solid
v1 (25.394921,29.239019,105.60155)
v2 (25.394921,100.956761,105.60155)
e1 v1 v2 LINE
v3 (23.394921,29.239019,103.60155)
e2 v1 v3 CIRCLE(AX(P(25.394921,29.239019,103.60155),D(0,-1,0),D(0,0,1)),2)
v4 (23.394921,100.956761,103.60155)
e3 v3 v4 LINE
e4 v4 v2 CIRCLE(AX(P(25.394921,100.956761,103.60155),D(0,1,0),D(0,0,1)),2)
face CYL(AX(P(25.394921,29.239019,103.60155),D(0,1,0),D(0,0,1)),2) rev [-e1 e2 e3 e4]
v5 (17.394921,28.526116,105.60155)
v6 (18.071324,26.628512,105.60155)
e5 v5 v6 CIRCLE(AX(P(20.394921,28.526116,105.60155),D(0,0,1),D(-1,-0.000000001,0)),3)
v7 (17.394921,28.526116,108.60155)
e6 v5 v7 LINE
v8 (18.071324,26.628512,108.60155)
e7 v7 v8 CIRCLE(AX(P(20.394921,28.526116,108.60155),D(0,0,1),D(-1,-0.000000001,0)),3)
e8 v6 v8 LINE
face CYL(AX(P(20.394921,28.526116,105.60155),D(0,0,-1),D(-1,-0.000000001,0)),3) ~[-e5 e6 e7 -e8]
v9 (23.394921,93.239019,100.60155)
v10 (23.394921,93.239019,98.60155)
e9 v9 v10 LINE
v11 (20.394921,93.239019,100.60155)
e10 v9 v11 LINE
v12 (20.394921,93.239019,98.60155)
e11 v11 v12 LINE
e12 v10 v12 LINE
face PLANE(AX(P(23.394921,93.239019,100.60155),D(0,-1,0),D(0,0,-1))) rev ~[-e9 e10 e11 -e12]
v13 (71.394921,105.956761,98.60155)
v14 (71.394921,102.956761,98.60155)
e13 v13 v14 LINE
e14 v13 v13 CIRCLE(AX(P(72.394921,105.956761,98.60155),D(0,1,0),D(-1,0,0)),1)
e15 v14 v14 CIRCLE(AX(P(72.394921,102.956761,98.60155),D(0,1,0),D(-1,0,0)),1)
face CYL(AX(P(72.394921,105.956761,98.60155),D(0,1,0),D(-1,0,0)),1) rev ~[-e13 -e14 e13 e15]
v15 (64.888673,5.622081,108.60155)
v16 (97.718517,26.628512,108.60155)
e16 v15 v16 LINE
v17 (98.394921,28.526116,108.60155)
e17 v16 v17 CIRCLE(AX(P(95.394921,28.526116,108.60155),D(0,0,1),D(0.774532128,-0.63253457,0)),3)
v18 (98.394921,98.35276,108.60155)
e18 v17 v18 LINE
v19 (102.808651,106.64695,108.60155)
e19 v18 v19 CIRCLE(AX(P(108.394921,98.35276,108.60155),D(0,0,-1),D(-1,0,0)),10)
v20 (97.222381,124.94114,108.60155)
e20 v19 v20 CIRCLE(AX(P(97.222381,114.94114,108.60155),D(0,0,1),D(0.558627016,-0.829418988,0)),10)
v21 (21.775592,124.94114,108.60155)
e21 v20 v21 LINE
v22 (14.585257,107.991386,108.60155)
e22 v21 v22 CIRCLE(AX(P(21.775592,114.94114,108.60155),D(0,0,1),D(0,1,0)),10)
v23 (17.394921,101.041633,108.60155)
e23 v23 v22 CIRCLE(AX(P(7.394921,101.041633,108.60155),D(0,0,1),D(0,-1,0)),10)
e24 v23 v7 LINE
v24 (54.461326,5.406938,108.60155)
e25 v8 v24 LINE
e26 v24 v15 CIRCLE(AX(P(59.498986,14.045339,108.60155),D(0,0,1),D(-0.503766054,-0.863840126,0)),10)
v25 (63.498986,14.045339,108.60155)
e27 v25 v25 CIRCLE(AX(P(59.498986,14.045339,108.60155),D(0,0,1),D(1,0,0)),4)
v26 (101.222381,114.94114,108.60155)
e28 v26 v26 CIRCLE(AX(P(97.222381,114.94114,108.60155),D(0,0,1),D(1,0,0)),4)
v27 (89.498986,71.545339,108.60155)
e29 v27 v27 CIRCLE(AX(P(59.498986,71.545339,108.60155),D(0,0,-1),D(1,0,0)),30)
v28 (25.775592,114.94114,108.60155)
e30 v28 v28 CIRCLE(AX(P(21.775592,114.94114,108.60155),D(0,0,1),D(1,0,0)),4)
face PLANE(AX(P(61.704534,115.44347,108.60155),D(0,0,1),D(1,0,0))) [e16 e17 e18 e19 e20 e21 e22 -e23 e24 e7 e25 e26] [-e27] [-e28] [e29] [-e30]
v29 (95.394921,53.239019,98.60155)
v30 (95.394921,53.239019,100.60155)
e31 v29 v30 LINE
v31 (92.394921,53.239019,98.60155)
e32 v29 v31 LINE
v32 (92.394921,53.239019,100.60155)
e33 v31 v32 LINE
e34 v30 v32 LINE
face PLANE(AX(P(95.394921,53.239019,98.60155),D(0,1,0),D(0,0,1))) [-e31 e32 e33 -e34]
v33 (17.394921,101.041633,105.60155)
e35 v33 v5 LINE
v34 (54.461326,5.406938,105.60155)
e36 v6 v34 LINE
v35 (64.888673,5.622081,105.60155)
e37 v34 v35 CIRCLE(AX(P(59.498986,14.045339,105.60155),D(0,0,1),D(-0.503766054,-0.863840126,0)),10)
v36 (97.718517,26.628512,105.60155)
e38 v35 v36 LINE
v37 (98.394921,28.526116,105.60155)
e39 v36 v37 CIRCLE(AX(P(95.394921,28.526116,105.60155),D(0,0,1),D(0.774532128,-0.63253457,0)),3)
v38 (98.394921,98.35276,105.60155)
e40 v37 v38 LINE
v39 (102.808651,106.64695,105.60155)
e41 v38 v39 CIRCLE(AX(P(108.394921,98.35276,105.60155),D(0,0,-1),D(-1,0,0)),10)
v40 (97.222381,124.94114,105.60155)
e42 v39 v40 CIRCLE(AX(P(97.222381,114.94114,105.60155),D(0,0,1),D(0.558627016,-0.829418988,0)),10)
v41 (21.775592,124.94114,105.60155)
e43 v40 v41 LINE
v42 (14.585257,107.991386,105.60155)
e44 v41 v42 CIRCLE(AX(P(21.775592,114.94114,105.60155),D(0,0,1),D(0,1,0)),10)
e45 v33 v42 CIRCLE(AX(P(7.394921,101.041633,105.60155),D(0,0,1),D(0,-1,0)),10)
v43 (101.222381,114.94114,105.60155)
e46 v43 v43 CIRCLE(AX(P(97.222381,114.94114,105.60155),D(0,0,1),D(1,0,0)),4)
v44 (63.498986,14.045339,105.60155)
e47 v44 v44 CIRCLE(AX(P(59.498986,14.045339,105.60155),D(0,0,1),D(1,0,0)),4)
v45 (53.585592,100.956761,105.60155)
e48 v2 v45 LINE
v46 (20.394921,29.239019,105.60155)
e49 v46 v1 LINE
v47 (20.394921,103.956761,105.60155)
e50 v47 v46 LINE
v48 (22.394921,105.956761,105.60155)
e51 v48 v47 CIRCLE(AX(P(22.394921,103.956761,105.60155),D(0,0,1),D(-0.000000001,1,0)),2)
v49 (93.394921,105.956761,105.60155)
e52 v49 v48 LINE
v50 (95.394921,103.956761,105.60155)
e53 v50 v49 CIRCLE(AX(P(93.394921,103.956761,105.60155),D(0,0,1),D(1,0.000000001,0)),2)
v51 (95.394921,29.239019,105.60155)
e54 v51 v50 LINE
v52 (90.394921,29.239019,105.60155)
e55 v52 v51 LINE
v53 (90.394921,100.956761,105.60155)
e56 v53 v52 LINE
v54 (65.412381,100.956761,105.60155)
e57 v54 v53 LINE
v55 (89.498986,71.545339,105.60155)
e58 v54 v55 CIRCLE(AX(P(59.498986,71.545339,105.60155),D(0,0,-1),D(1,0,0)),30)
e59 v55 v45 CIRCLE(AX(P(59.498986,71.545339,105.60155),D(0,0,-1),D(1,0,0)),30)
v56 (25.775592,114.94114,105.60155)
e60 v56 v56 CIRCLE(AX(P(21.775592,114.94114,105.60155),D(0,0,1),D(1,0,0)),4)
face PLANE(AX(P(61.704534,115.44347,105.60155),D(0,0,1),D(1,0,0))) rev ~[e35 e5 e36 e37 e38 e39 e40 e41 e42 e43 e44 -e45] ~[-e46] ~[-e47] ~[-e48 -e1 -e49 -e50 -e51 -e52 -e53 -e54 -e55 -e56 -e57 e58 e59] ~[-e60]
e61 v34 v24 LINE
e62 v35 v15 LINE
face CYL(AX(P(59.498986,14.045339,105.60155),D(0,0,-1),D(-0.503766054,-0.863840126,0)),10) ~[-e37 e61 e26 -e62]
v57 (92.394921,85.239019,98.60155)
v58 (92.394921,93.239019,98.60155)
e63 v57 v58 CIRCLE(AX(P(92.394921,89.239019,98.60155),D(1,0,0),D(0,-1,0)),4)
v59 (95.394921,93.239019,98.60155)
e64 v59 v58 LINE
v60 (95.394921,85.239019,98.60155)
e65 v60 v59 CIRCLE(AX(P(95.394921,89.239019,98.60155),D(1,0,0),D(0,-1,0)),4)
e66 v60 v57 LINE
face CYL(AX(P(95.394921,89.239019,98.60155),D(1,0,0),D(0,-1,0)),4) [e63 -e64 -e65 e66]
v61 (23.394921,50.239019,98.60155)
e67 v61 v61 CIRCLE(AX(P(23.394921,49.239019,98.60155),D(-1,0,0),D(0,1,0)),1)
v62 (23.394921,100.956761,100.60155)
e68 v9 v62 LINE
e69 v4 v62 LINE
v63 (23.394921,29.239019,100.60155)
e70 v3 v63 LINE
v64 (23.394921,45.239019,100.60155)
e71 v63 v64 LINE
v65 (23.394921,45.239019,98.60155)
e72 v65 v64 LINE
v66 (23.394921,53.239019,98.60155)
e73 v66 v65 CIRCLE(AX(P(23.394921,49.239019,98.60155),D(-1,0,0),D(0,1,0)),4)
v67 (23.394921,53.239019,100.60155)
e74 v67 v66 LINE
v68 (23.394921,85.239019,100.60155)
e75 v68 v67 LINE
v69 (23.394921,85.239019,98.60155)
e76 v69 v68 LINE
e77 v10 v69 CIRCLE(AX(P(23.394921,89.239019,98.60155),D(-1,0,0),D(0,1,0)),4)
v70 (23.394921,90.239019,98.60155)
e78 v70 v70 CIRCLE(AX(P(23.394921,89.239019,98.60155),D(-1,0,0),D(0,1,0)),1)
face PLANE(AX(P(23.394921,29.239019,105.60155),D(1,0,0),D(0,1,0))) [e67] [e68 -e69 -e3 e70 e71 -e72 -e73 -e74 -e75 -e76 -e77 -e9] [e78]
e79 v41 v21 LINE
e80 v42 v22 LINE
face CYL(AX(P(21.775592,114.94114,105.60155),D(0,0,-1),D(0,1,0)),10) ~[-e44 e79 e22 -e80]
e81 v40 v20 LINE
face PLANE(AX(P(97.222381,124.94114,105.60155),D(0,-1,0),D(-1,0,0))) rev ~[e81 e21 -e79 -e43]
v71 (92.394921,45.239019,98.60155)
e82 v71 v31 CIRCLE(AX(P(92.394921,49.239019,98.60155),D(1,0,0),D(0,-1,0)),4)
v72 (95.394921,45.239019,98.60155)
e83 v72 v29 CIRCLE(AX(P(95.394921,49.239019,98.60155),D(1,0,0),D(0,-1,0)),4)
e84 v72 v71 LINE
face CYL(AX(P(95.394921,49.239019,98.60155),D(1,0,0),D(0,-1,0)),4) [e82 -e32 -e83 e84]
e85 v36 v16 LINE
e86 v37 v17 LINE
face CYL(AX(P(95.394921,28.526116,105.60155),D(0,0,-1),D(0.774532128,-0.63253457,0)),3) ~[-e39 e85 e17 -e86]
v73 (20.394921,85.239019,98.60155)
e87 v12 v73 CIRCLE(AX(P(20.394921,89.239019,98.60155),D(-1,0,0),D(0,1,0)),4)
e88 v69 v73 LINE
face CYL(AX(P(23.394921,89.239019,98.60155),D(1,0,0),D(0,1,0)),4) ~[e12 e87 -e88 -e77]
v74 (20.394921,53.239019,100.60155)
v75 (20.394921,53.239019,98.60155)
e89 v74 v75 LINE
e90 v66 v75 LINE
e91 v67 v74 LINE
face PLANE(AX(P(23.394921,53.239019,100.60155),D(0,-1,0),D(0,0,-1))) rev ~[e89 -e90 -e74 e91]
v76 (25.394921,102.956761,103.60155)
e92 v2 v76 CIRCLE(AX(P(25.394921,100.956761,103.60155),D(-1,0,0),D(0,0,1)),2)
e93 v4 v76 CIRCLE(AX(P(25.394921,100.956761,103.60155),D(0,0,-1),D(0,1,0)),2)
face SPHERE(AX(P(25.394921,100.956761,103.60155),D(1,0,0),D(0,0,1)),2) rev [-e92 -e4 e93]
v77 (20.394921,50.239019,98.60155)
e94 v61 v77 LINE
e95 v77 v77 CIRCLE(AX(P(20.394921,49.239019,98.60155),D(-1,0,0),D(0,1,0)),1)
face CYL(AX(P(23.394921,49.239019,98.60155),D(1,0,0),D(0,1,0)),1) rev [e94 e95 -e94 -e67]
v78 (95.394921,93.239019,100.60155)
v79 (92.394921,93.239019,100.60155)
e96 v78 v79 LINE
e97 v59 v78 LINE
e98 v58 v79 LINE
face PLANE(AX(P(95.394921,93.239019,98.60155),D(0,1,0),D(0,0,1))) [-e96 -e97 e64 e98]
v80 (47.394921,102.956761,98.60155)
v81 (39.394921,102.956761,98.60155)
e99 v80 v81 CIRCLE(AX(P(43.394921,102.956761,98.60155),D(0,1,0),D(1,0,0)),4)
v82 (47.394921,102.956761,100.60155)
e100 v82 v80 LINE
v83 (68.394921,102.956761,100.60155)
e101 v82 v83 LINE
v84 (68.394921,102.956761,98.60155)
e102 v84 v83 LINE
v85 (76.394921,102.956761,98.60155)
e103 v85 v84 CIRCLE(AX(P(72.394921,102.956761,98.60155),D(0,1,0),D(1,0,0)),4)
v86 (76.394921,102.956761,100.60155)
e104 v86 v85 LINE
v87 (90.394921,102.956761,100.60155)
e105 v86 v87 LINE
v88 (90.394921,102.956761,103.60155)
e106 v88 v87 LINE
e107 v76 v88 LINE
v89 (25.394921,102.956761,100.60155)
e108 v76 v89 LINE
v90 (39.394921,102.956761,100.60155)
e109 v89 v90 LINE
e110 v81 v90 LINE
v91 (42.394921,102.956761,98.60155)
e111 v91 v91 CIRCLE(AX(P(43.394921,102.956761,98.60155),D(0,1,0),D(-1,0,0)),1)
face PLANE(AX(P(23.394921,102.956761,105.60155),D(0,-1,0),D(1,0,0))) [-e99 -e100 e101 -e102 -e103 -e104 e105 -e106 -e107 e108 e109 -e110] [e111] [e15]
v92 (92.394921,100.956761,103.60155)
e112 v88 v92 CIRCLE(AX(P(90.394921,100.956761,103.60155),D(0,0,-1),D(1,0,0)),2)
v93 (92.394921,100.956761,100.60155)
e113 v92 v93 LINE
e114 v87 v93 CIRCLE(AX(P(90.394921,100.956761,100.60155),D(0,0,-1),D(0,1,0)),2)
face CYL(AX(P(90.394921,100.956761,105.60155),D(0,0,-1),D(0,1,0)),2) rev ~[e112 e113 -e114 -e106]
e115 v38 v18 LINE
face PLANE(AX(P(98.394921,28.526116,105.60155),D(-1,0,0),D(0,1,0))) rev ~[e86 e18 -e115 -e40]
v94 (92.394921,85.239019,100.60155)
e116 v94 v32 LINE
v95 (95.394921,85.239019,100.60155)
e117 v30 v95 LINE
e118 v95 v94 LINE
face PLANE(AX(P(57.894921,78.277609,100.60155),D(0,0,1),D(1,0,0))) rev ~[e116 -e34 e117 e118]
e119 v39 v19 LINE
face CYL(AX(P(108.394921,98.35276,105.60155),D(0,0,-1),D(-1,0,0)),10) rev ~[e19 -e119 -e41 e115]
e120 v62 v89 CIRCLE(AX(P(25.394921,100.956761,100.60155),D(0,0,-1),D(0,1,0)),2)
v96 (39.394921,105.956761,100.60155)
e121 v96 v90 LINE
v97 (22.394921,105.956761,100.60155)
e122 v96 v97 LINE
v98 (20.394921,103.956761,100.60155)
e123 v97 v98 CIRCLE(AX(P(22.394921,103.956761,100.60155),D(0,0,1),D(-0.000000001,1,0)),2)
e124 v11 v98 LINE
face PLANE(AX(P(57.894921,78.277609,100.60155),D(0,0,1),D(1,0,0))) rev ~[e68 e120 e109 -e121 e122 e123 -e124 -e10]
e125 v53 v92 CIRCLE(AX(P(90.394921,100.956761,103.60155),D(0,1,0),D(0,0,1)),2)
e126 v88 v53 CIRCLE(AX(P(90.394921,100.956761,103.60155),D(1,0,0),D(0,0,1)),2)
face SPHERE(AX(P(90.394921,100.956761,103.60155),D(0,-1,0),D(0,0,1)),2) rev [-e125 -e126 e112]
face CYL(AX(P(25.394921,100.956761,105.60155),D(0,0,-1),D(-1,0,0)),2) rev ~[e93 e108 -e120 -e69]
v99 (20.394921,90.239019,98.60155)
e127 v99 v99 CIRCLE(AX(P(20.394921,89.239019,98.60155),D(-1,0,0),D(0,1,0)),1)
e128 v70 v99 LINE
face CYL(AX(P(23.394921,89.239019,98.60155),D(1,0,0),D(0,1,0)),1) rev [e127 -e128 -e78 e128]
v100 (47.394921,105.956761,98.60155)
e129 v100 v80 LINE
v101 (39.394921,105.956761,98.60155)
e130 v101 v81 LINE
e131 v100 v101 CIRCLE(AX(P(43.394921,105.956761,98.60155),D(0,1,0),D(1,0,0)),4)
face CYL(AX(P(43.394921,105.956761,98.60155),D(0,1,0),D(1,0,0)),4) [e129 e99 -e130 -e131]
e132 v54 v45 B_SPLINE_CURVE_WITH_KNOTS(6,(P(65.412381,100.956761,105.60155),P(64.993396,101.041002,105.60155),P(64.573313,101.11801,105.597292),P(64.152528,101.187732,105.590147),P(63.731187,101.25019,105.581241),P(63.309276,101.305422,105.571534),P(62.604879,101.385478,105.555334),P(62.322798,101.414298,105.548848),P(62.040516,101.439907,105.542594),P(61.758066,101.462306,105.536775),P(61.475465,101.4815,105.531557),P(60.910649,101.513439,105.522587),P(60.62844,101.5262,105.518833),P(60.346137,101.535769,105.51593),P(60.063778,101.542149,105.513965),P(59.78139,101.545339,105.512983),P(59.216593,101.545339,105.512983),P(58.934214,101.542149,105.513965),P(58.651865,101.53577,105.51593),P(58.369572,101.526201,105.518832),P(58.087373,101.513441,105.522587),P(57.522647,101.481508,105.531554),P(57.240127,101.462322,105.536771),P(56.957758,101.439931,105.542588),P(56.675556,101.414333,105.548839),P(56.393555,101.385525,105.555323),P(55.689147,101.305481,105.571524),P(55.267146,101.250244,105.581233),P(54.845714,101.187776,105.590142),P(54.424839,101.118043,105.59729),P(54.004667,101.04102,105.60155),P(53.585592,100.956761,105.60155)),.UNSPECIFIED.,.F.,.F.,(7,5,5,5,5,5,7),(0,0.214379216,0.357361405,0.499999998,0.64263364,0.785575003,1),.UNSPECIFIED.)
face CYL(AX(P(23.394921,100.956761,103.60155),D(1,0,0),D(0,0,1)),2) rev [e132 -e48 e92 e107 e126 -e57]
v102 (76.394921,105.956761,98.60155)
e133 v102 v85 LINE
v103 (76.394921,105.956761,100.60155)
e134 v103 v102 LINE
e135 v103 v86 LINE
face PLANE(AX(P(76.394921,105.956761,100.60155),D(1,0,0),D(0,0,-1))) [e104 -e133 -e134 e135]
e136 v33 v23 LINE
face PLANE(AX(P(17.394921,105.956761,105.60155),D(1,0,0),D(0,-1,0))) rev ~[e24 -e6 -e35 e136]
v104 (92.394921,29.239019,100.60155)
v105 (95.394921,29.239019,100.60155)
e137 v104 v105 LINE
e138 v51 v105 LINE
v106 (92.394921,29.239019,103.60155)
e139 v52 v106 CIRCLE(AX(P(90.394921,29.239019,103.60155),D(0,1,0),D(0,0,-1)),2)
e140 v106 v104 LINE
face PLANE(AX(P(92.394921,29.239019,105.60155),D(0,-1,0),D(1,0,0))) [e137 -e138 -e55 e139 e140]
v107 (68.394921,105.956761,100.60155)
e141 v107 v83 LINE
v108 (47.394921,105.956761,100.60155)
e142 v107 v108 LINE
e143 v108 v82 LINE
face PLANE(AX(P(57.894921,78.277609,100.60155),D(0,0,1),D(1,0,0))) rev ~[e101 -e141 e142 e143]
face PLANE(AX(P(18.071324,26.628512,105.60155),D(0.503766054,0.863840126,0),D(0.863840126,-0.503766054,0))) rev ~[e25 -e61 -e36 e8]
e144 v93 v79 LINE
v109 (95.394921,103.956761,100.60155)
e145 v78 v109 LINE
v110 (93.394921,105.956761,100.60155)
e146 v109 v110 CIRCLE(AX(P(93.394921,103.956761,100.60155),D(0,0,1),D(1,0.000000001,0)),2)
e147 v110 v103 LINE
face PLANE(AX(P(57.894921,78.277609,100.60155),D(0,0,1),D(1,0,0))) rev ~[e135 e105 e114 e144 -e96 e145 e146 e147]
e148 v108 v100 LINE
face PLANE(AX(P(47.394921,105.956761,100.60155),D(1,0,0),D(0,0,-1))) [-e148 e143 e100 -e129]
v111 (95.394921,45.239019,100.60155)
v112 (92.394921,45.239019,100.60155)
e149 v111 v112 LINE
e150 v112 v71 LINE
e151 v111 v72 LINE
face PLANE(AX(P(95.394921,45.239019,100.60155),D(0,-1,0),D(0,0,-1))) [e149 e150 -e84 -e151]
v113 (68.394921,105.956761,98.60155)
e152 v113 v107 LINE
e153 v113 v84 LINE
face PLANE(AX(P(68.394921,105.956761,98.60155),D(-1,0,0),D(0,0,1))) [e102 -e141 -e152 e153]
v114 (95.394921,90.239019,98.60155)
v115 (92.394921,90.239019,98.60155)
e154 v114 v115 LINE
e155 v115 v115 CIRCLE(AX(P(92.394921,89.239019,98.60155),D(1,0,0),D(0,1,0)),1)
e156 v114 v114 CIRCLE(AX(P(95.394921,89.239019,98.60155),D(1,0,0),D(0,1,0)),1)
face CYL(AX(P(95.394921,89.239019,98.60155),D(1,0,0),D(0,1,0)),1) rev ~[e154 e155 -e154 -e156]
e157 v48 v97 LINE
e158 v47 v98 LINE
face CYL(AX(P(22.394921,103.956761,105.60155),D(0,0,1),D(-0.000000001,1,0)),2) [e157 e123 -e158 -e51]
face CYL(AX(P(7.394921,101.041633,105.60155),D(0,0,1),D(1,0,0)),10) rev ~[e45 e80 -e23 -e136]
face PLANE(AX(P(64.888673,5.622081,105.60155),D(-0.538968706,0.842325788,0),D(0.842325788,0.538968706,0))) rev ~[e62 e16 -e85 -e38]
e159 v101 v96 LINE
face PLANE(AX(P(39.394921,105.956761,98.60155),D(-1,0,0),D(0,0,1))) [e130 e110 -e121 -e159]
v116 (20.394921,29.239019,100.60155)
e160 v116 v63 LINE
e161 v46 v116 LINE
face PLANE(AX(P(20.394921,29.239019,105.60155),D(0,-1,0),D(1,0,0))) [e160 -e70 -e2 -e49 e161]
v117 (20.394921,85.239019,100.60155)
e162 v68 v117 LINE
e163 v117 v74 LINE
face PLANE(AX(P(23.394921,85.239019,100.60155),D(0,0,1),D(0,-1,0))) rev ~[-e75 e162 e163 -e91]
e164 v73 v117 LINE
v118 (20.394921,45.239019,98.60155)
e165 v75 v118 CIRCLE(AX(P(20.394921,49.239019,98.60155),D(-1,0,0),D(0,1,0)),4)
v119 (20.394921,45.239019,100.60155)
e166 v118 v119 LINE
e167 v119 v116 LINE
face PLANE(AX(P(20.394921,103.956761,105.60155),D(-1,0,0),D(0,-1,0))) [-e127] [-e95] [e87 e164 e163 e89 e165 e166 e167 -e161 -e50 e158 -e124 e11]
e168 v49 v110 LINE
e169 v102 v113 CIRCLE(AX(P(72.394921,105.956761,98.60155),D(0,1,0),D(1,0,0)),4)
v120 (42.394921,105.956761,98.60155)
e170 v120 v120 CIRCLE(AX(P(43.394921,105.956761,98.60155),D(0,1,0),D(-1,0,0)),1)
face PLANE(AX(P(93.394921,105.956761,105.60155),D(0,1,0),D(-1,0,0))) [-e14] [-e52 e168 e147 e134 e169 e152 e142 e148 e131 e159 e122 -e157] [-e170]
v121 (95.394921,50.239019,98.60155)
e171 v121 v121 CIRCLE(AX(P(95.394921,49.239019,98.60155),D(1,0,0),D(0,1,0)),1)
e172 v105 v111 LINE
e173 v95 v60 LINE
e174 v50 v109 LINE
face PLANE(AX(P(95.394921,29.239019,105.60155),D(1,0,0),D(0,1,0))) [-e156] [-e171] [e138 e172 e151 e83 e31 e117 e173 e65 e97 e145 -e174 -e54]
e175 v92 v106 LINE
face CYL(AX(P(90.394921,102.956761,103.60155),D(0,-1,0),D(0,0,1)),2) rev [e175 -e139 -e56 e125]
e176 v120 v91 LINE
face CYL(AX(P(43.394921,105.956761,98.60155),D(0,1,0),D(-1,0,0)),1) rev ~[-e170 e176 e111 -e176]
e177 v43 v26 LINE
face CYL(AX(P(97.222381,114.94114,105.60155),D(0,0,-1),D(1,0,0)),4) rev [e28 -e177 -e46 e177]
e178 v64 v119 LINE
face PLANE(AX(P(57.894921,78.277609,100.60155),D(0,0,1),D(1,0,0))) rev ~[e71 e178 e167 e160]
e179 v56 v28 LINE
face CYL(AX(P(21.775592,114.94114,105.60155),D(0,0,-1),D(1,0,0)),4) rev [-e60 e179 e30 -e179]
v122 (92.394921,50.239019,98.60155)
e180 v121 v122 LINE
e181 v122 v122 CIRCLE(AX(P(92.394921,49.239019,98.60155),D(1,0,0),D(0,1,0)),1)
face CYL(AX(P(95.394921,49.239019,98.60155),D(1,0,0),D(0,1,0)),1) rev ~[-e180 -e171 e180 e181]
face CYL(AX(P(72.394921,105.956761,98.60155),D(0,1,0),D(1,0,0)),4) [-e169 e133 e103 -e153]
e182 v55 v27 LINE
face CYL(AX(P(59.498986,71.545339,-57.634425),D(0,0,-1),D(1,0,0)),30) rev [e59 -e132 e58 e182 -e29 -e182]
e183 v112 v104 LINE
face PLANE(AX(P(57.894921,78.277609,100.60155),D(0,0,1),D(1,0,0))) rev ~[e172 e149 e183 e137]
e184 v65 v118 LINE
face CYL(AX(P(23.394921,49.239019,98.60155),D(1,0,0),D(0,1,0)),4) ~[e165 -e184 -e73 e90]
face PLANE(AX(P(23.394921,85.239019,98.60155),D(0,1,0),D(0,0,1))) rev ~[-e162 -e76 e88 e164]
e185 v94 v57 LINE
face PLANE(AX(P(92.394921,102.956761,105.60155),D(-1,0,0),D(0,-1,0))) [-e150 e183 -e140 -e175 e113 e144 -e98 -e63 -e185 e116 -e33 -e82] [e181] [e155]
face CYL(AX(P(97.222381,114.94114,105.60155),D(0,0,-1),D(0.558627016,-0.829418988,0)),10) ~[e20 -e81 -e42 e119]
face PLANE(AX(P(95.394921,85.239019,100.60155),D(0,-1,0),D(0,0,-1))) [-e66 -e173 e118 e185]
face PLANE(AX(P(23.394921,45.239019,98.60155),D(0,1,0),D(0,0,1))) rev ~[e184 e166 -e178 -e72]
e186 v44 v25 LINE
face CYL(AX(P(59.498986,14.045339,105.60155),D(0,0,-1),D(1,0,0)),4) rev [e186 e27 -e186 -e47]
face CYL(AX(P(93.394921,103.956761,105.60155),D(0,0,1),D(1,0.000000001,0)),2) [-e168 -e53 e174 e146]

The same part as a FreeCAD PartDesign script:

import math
import FreeCAD as App
import Part
import Sketcher
Q = App.Units.Quantity


def edges_at(feature, points):
    """Names of the edges that pass closest to the given points."""
    edges = feature.Shape.Edges
    near = lambda p: min(range(len(edges)), key=lambda i: edges[i].distToShape(Part.Vertex(*p))[0])
    return sorted({f"Edge{near(p) + 1}" for p in points})

doc = App.newDocument("Part")
params = doc.addObject("Spreadsheet::Sheet", "Params")
for row, (alias, value) in enumerate([
    ("sketch1_radius", "3 mm"),
    ("sketch1_radius2", "2 mm"),
    ("sketch1_width", "75 mm"),
    ("pad1_length", "3 mm"),
    ("sketch2_diameter", "8 mm"),
    ("sketch2_radius", "10 mm"),
    ("sketch2_radius2", "3 mm"),
    ("pad2_length", "3 mm"),
    ("sketch3_radius", "2 mm"),
    ("sketch3_width", "71 mm"),
    ("sketch3_width2", "3 mm"),
    ("pad3_length", "5 mm"),
    ("fillet_radius", "2 mm"),
    ("fillet2_radius", "10 mm"),
    ("sketch4_diameter", "2 mm"),
    ("sketch4_radius", "4 mm"),
    ("sketch4_height", "2 mm"),
    ("pad4_length", "3 mm"),
    ("sketch5_diameter", "2 mm"),
    ("sketch5_radius", "4 mm"),
    ("sketch5_width", "32 mm"),
    ("sketch5_width2", "16 mm"),
    ("sketch5_height", "3 mm"),
    ("pad5_length", "3 mm"),
    ("sketch6_diameter", "2 mm"),
    ("sketch6_radius", "4 mm"),
    ("sketch6_height", "2 mm"),
    ("pad6_length", "3 mm"),
    ("sketch7_diameter", "60 mm"),
], start=1):
    params.set(f"A{row}", alias)
    params.set(f"B{row}", "=" + value)
    params.setAlias(f"B{row}", alias)

body = doc.addObject("PartDesign::Body", "Body")

# Sketch on XY plane
sketch1 = body.newObject("Sketcher::SketchObject", "Sketch")
sketch1.AttachmentSupport = (doc.getObject("XY_Plane"), [""])
sketch1.MapMode = "FlatFace"
sketch1.AttachmentOffset = App.Placement(App.Vector(0, 0, 105.60155), App.Rotation())
sketch1.addGeometry(Part.LineSegment(App.Vector(93.8, 26.6, 0), App.Vector(97.7, 26.6, 0)), False)
sketch1.addGeometry(Part.ArcOfCircle(Part.Circle(App.Vector(95.4, 28.5, 0), App.Vector(0, 0, 1), 3), math.radians(-39), math.radians(0)), False)
sketch1.addGeometry(Part.LineSegment(App.Vector(98.4, 28.5, 0), App.Vector(98.4, 106, 0)), False)
sketch1.addGeometry(Part.ArcOfCircle(Part.Circle(App.Vector(95.4, 106, 0), App.Vector(0, 0, 1), 3), math.radians(0), math.radians(90)), False)
sketch1.addGeometry(Part.LineSegment(App.Vector(95.4, 109, 0), App.Vector(20.4, 109, 0)), False)
sketch1.addGeometry(Part.ArcOfCircle(Part.Circle(App.Vector(20.4, 106, 0), App.Vector(0, 0, 1), 3), math.radians(90), math.radians(180)), False)
sketch1.addGeometry(Part.LineSegment(App.Vector(17.4, 106, 0), App.Vector(17.4, 28.5, 0)), False)
sketch1.addGeometry(Part.ArcOfCircle(Part.Circle(App.Vector(20.4, 28.5, 0), App.Vector(0, 0, 1), 3), math.radians(-180), math.radians(-141)), False)
sketch1.addGeometry(Part.LineSegment(App.Vector(18.1, 26.6, 0), App.Vector(21.9, 26.6, 0)), False)
sketch1.addGeometry(Part.LineSegment(App.Vector(21.9, 26.6, 0), App.Vector(20.8, 28, 0)), False)
sketch1.addGeometry(Part.ArcOfCircle(Part.Circle(App.Vector(22.4, 29.2, 0), App.Vector(0, 0, 1), 2), math.radians(180), math.radians(219)), False)
sketch1.addGeometry(Part.LineSegment(App.Vector(20.4, 29.2, 0), App.Vector(20.4, 104, 0)), False)
sketch1.addGeometry(Part.ArcOfCircle(Part.Circle(App.Vector(22.4, 104, 0), App.Vector(0, 0, 1), 2), math.radians(90), math.radians(180)), False)
sketch1.addGeometry(Part.LineSegment(App.Vector(22.4, 106, 0), App.Vector(93.4, 106, 0)), False)
sketch1.addGeometry(Part.ArcOfCircle(Part.Circle(App.Vector(93.4, 104, 0), App.Vector(0, 0, 1), 2), math.radians(0), math.radians(90)), False)
sketch1.addGeometry(Part.LineSegment(App.Vector(95.4, 104, 0), App.Vector(95.4, 29.2, 0)), False)
sketch1.addGeometry(Part.ArcOfCircle(Part.Circle(App.Vector(93.4, 29.2, 0), App.Vector(0, 0, 1), 2), math.radians(-39), math.radians(0)), False)
sketch1.addGeometry(Part.LineSegment(App.Vector(94.9, 28, 0), App.Vector(93.8, 26.6, 0)), False)
sketch1.addConstraint(Sketcher.Constraint("Coincident", 0, 2, 1, 1))
sketch1.addConstraint(Sketcher.Constraint("Tangent", 1, 2, 2, 1))
sketch1.addConstraint(Sketcher.Constraint("Tangent", 2, 2, 3, 1))
sketch1.addConstraint(Sketcher.Constraint("Tangent", 3, 2, 4, 1))
sketch1.addConstraint(Sketcher.Constraint("Tangent", 4, 2, 5, 1))
sketch1.addConstraint(Sketcher.Constraint("Tangent", 5, 2, 6, 1))
sketch1.addConstraint(Sketcher.Constraint("Tangent", 6, 2, 7, 1))
sketch1.addConstraint(Sketcher.Constraint("Coincident", 7, 2, 8, 1))
sketch1.addConstraint(Sketcher.Constraint("Coincident", 8, 2, 9, 1))
sketch1.addConstraint(Sketcher.Constraint("Tangent", 9, 2, 10, 2))
sketch1.addConstraint(Sketcher.Constraint("Tangent", 10, 1, 11, 1))
sketch1.addConstraint(Sketcher.Constraint("Tangent", 11, 2, 12, 2))
sketch1.addConstraint(Sketcher.Constraint("Tangent", 12, 1, 13, 1))
sketch1.addConstraint(Sketcher.Constraint("Tangent", 13, 2, 14, 2))
sketch1.addConstraint(Sketcher.Constraint("Tangent", 14, 1, 15, 1))
sketch1.addConstraint(Sketcher.Constraint("Tangent", 15, 2, 16, 2))
sketch1.addConstraint(Sketcher.Constraint("Tangent", 16, 1, 17, 1))
sketch1.addConstraint(Sketcher.Constraint("Coincident", 17, 2, 0, 1))
sketch1.addConstraint(Sketcher.Constraint("Horizontal", 0))
sketch1.addConstraint(Sketcher.Constraint("Vertical", 2))
sketch1.addConstraint(Sketcher.Constraint("Horizontal", 4))
sketch1.addConstraint(Sketcher.Constraint("Vertical", 6))
sketch1.addConstraint(Sketcher.Constraint("Horizontal", 8))
sketch1.addConstraint(Sketcher.Constraint("Vertical", 11))
sketch1.addConstraint(Sketcher.Constraint("Horizontal", 13))
sketch1.addConstraint(Sketcher.Constraint("Vertical", 15))
sketch1.addConstraint(Sketcher.Constraint("Equal", 1, 3))
sketch1.addConstraint(Sketcher.Constraint("Equal", 3, 5))
sketch1.addConstraint(Sketcher.Constraint("Equal", 5, 7))
sketch1.addConstraint(Sketcher.Constraint("Equal", 10, 12))
sketch1.addConstraint(Sketcher.Constraint("Equal", 12, 14))
sketch1.addConstraint(Sketcher.Constraint("Equal", 14, 16))
sketch1.addConstraint(Sketcher.Constraint("Horizontal", 1, 3, 7, 3))
sketch1.addConstraint(Sketcher.Constraint("Horizontal", 10, 3, 16, 3))
sketch1.addConstraint(Sketcher.Constraint("Horizontal", 0, 2, 7, 2))
sketch1.addConstraint(Sketcher.Constraint("Horizontal", 5, 2, 12, 1))
sketch1.addConstraint(Sketcher.Constraint("Horizontal", 9, 2, 16, 1))
sketch1.addConstraint(Sketcher.Constraint("Vertical", 4, 2, 10, 1))
sketch1.addConstraint(Sketcher.Constraint("Vertical", 3, 2, 14, 1))
sketch1.addConstraint(Sketcher.Constraint("Radius", 1, Q("3 mm")))
sketch1.addConstraint(Sketcher.Constraint("Radius", 10, Q("2 mm")))
sketch1.addConstraint(Sketcher.Constraint("DistanceX", 4, 2, 4, 1, Q("75 mm")))
sketch1.addConstraint(Sketcher.Constraint("DistanceX", 0, 1, 0, 2, Q("3.873306 mm")))
sketch1.addConstraint(Sketcher.Constraint("DistanceY", 2, 1, 2, 2, Q("77.430646 mm")))
sketch1.addConstraint(Sketcher.Constraint("DistanceY", 11, 1, 11, 2, Q("74.717743 mm")))
sketch1.addConstraint(Sketcher.Constraint("DistanceX", -1, 1, 1, 3, Q("95.394921 mm")))
sketch1.addConstraint(Sketcher.Constraint("DistanceY", -1, 1, 3, 3, Q("105.956761 mm")))
sketch1.addConstraint(Sketcher.Constraint("DistanceX", -1, 1, 8, 2, Q("21.944631 mm")))
sketch1.setExpression("Constraints[39]", "Params.sketch1_radius")
sketch1.setExpression("Constraints[40]", "Params.sketch1_radius2")
sketch1.setExpression("Constraints[41]", "Params.sketch1_width")
pad1 = body.newObject("PartDesign::Pad", "Pad")
pad1.Profile = sketch1
pad1.setExpression("Length", "Params.pad1_length")

# Sketch on XY plane
sketch2 = body.newObject("Sketcher::SketchObject", "Sketch001")
sketch2.AttachmentSupport = (doc.getObject("XY_Plane"), [""])
sketch2.MapMode = "FlatFace"
sketch2.AttachmentOffset = App.Placement(App.Vector(0, 0, 105.60155), App.Rotation())
sketch2.addGeometry(Part.ArcOfCircle(Part.Circle(App.Vector(97.2, 114.9, 0), App.Vector(0, 0, 1), 10), math.radians(-56), math.radians(90)), False)
sketch2.addGeometry(Part.LineSegment(App.Vector(97.2, 124.9, 0), App.Vector(21.8, 124.9, 0)), False)
sketch2.addGeometry(Part.ArcOfCircle(Part.Circle(App.Vector(21.8, 114.9, 0), App.Vector(0, 0, 1), 10), math.radians(90), math.radians(244)), False)
sketch2.addGeometry(Part.LineSegment(App.Vector(17.4, 106, 0), App.Vector(17.4, 28.5, 0)), False)
sketch2.addGeometry(Part.ArcOfCircle(Part.Circle(App.Vector(20.4, 28.5, 0), App.Vector(0, 0, 1), 3), math.radians(-180), math.radians(-141)), False)
sketch2.addGeometry(Part.LineSegment(App.Vector(18.1, 26.6, 0), App.Vector(54.5, 5.4, 0)), False)
sketch2.addGeometry(Part.ArcOfCircle(Part.Circle(App.Vector(59.5, 14, 0), App.Vector(0, 0, 1), 10), math.radians(-120), math.radians(-57)), False)
sketch2.addGeometry(Part.LineSegment(App.Vector(64.9, 5.6, 0), App.Vector(97.7, 26.6, 0)), False)
sketch2.addGeometry(Part.ArcOfCircle(Part.Circle(App.Vector(95.4, 28.5, 0), App.Vector(0, 0, 1), 3), math.radians(-39), math.radians(0)), False)
sketch2.addGeometry(Part.LineSegment(App.Vector(98.4, 28.5, 0), App.Vector(98.4, 98.4, 0)), False)
sketch2.addGeometry(Part.ArcOfCircle(Part.Circle(App.Vector(108.4, 98.4, 0), App.Vector(0, 0, 1), 10), math.radians(124), math.radians(180)), False)
sketch2.addGeometry(Part.Circle(App.Vector(21.8, 114.9, 0), App.Vector(0, 0, 1), 4), False)
sketch2.addGeometry(Part.Circle(App.Vector(97.2, 114.9, 0), App.Vector(0, 0, 1), 4), False)
sketch2.addGeometry(Part.Circle(App.Vector(59.5, 14, 0), App.Vector(0, 0, 1), 4), False)
sketch2.addConstraint(Sketcher.Constraint("Tangent", 0, 2, 1, 1))
sketch2.addConstraint(Sketcher.Constraint("Tangent", 1, 2, 2, 1))
sketch2.addConstraint(Sketcher.Constraint("Coincident", 2, 2, 3, 1))
sketch2.addConstraint(Sketcher.Constraint("Tangent", 3, 2, 4, 1))
sketch2.addConstraint(Sketcher.Constraint("Coincident", 4, 2, 5, 1))
sketch2.addConstraint(Sketcher.Constraint("Tangent", 5, 2, 6, 1))
sketch2.addConstraint(Sketcher.Constraint("Tangent", 6, 2, 7, 1))
sketch2.addConstraint(Sketcher.Constraint("Coincident", 7, 2, 8, 1))
sketch2.addConstraint(Sketcher.Constraint("Tangent", 8, 2, 9, 1))
sketch2.addConstraint(Sketcher.Constraint("Tangent", 9, 2, 10, 2))
sketch2.addConstraint(Sketcher.Constraint("Tangent", 10, 1, 0, 1))
sketch2.addConstraint(Sketcher.Constraint("Horizontal", 1))
sketch2.addConstraint(Sketcher.Constraint("Vertical", 3))
sketch2.addConstraint(Sketcher.Constraint("Vertical", 9))
sketch2.addConstraint(Sketcher.Constraint("Coincident", 11, 3, 2, 3))
sketch2.addConstraint(Sketcher.Constraint("Coincident", 12, 3, 0, 3))
sketch2.addConstraint(Sketcher.Constraint("Coincident", 13, 3, 6, 3))
sketch2.addConstraint(Sketcher.Constraint("Equal", 0, 2))
sketch2.addConstraint(Sketcher.Constraint("Equal", 2, 6))
sketch2.addConstraint(Sketcher.Constraint("Equal", 4, 8))
sketch2.addConstraint(Sketcher.Constraint("Equal", 6, 10))
sketch2.addConstraint(Sketcher.Constraint("Equal", 11, 12))
sketch2.addConstraint(Sketcher.Constraint("Equal", 12, 13))
sketch2.addConstraint(Sketcher.Constraint("Horizontal", 4, 3, 8, 3))
sketch2.addConstraint(Sketcher.Constraint("Horizontal", 4, 2, 7, 2))
sketch2.addConstraint(Sketcher.Constraint("Diameter", 11, Q("8 mm")))
sketch2.addConstraint(Sketcher.Constraint("Radius", 0, Q("10 mm")))
sketch2.addConstraint(Sketcher.Constraint("Radius", 4, Q("3 mm")))
sketch2.addConstraint(Sketcher.Constraint("DistanceX", 4, 3, 8, 3, Q("75 mm")))
sketch2.addConstraint(Sketcher.Constraint("DistanceX", 4, 2, 5, 2, Q("36.390001 mm")))
sketch2.addConstraint(Sketcher.Constraint("DistanceY", 3, 2, 3, 1, Q("77.425602 mm")))
sketch2.addConstraint(Sketcher.Constraint("DistanceX", 1, 2, 1, 1, Q("75.446788 mm")))
sketch2.addConstraint(Sketcher.Constraint("DistanceY", 6, 3, 2, 3, Q("100.895801 mm")))
sketch2.addConstraint(Sketcher.Constraint("DistanceY", 5, 2, 13, 3, Q("8.638401 mm")))
sketch2.addConstraint(Sketcher.Constraint("DistanceY", 9, 1, 9, 2, Q("69.826644 mm")))
sketch2.addConstraint(Sketcher.Constraint("DistanceX", -1, 1, 0, 3, Q("97.222381 mm")))
sketch2.addConstraint(Sketcher.Constraint("DistanceY", -1, 1, 0, 3, Q("114.94114 mm")))
sketch2.setExpression("Constraints[25]", "Params.sketch2_diameter")
sketch2.setExpression("Constraints[26]", "Params.sketch2_radius")
sketch2.setExpression("Constraints[27]", "Params.sketch2_radius2")
pad2 = body.newObject("PartDesign::Pad", "Pad001")
pad2.Profile = sketch2
pad2.setExpression("Length", "Params.pad2_length")

# Sketch on XY plane
sketch3 = body.newObject("Sketcher::SketchObject", "Sketch002")
sketch3.AttachmentSupport = (doc.getObject("XY_Plane"), [""])
sketch3.MapMode = "FlatFace"
sketch3.AttachmentOffset = App.Placement(App.Vector(0, 0, 105.60155), App.Rotation())
sketch3.addGeometry(Part.LineSegment(App.Vector(20.4, 29.2, 0), App.Vector(20.4, 104, 0)), False)
sketch3.addGeometry(Part.ArcOfCircle(Part.Circle(App.Vector(22.4, 104, 0), App.Vector(0, 0, 1), 2), math.radians(90), math.radians(180)), False)
sketch3.addGeometry(Part.LineSegment(App.Vector(22.4, 106, 0), App.Vector(93.4, 106, 0)), False)
sketch3.addGeometry(Part.ArcOfCircle(Part.Circle(App.Vector(93.4, 104, 0), App.Vector(0, 0, 1), 2), math.radians(0), math.radians(90)), False)
sketch3.addGeometry(Part.LineSegment(App.Vector(95.4, 104, 0), App.Vector(95.4, 29.2, 0)), False)
sketch3.addGeometry(Part.LineSegment(App.Vector(95.4, 29.2, 0), App.Vector(92.4, 29.2, 0)), False)
sketch3.addGeometry(Part.LineSegment(App.Vector(92.4, 29.2, 0), App.Vector(92.4, 103, 0)), False)
sketch3.addGeometry(Part.LineSegment(App.Vector(92.4, 103, 0), App.Vector(23.4, 103, 0)), False)
sketch3.addGeometry(Part.LineSegment(App.Vector(23.4, 103, 0), App.Vector(23.4, 29.2, 0)), False)
sketch3.addGeometry(Part.LineSegment(App.Vector(23.4, 29.2, 0), App.Vector(20.4, 29.2, 0)), False)
sketch3.addConstraint(Sketcher.Constraint("Tangent", 0, 2, 1, 2))
sketch3.addConstraint(Sketcher.Constraint("Tangent", 1, 1, 2, 1))
sketch3.addConstraint(Sketcher.Constraint("Tangent", 2, 2, 3, 2))
sketch3.addConstraint(Sketcher.Constraint("Tangent", 3, 1, 4, 1))
sketch3.addConstraint(Sketcher.Constraint("Coincident", 4, 2, 5, 1))
sketch3.addConstraint(Sketcher.Constraint("Coincident", 5, 2, 6, 1))
sketch3.addConstraint(Sketcher.Constraint("Coincident", 6, 2, 7, 1))
sketch3.addConstraint(Sketcher.Constraint("Coincident", 7, 2, 8, 1))
sketch3.addConstraint(Sketcher.Constraint("Coincident", 8, 2, 9, 1))
sketch3.addConstraint(Sketcher.Constraint("Coincident", 9, 2, 0, 1))
sketch3.addConstraint(Sketcher.Constraint("Vertical", 0))
sketch3.addConstraint(Sketcher.Constraint("Horizontal", 2))
sketch3.addConstraint(Sketcher.Constraint("Vertical", 4))
sketch3.addConstraint(Sketcher.Constraint("Horizontal", 5))
sketch3.addConstraint(Sketcher.Constraint("Vertical", 6))
sketch3.addConstraint(Sketcher.Constraint("Horizontal", 7))
sketch3.addConstraint(Sketcher.Constraint("Vertical", 8))
sketch3.addConstraint(Sketcher.Constraint("Horizontal", 9))
sketch3.addConstraint(Sketcher.Constraint("Equal", 1, 3))
sketch3.addConstraint(Sketcher.Constraint("Horizontal", 5, 2, 8, 2))
sketch3.addConstraint(Sketcher.Constraint("Equal", 5, 9))
sketch3.addConstraint(Sketcher.Constraint("Radius", 1, Q("2 mm")))
sketch3.addConstraint(Sketcher.Constraint("DistanceX", 2, 1, 2, 2, Q("71 mm")))
sketch3.addConstraint(Sketcher.Constraint("DistanceX", 5, 2, 5, 1, Q("3 mm")))
sketch3.addConstraint(Sketcher.Constraint("DistanceY", 6, 2, 3, 3, Q("1 mm")))
sketch3.addConstraint(Sketcher.Constraint("DistanceY", 0, 1, 0, 2, Q("74.717743 mm")))
sketch3.addConstraint(Sketcher.Constraint("DistanceX", -1, 1, 1, 3, Q("22.394921 mm")))
sketch3.addConstraint(Sketcher.Constraint("DistanceY", -1, 1, 1, 3, Q("103.956761 mm")))
sketch3.setExpression("Constraints[21]", "Params.sketch3_radius")
sketch3.setExpression("Constraints[22]", "Params.sketch3_width")
sketch3.setExpression("Constraints[23]", "Params.sketch3_width2")
pad3 = body.newObject("PartDesign::Pad", "Pad002")
pad3.Profile = sketch3
pad3.setExpression("Length", "Params.pad3_length")
pad3.Reversed = True
doc.recompute()

fillet = body.newObject("PartDesign::Fillet", "Fillet")
fillet.Base = (pad3, edges_at(pad3, [
    (92.395, 66.098, 105.602),
    (57.895, 102.957, 105.602),
    (92.395, 102.957, 103.102),
    (23.395, 66.098, 105.602),
    (23.395, 102.957, 103.102),
]))
fillet.setExpression("Radius", "Params.fillet_radius")
doc.recompute()

fillet2 = body.newObject("PartDesign::Fillet", "Fillet001")
fillet2.Base = (fillet, edges_at(fillet, [(17.395, 105.952, 107.102)]))
fillet2.setExpression("Radius", "Params.fillet2_radius")

# Sketch on YZ plane
sketch4 = body.newObject("Sketcher::SketchObject", "Sketch003")
sketch4.AttachmentSupport = (doc.getObject("YZ_Plane"), [""])
sketch4.MapMode = "FlatFace"
sketch4.AttachmentOffset = App.Placement(App.Vector(0, 0, 95.394921), App.Rotation())
sketch4.addGeometry(Part.LineSegment(App.Vector(93.2, 98.6, 0), App.Vector(93.2, 100.6, 0)), False)
sketch4.addGeometry(Part.LineSegment(App.Vector(93.2, 100.6, 0), App.Vector(85.2, 100.6, 0)), False)
sketch4.addGeometry(Part.LineSegment(App.Vector(85.2, 100.6, 0), App.Vector(85.2, 98.6, 0)), False)
sketch4.addGeometry(Part.ArcOfCircle(Part.Circle(App.Vector(89.2, 98.6, 0), App.Vector(0, 0, 1), 4), math.radians(180), math.radians(360)), False)
sketch4.addGeometry(Part.Circle(App.Vector(89.2, 98.6, 0), App.Vector(0, 0, 1), 1), False)
sketch4.addGeometry(Part.LineSegment(App.Vector(53.2, 98.6, 0), App.Vector(53.2, 100.6, 0)), False)
sketch4.addGeometry(Part.LineSegment(App.Vector(53.2, 100.6, 0), App.Vector(45.2, 100.6, 0)), False)
sketch4.addGeometry(Part.LineSegment(App.Vector(45.2, 100.6, 0), App.Vector(45.2, 98.6, 0)), False)
sketch4.addGeometry(Part.ArcOfCircle(Part.Circle(App.Vector(49.2, 98.6, 0), App.Vector(0, 0, 1), 4), math.radians(180), math.radians(360)), False)
sketch4.addGeometry(Part.Circle(App.Vector(49.2, 98.6, 0), App.Vector(0, 0, 1), 1), False)
sketch4.addConstraint(Sketcher.Constraint("Coincident", 0, 2, 1, 1))
sketch4.addConstraint(Sketcher.Constraint("Coincident", 1, 2, 2, 1))
sketch4.addConstraint(Sketcher.Constraint("Tangent", 2, 2, 3, 1))
sketch4.addConstraint(Sketcher.Constraint("Tangent", 3, 2, 0, 1))
sketch4.addConstraint(Sketcher.Constraint("Coincident", 5, 2, 6, 1))
sketch4.addConstraint(Sketcher.Constraint("Coincident", 6, 2, 7, 1))
sketch4.addConstraint(Sketcher.Constraint("Tangent", 7, 2, 8, 1))
sketch4.addConstraint(Sketcher.Constraint("Tangent", 8, 2, 5, 1))
sketch4.addConstraint(Sketcher.Constraint("Vertical", 0))
sketch4.addConstraint(Sketcher.Constraint("Horizontal", 1))
sketch4.addConstraint(Sketcher.Constraint("Vertical", 2))
sketch4.addConstraint(Sketcher.Constraint("Vertical", 5))
sketch4.addConstraint(Sketcher.Constraint("Horizontal", 6))
sketch4.addConstraint(Sketcher.Constraint("Vertical", 7))
sketch4.addConstraint(Sketcher.Constraint("Coincident", 4, 3, 3, 3))
sketch4.addConstraint(Sketcher.Constraint("Coincident", 9, 3, 8, 3))
sketch4.addConstraint(Sketcher.Constraint("Equal", 3, 8))
sketch4.addConstraint(Sketcher.Constraint("Equal", 4, 9))
sketch4.addConstraint(Sketcher.Constraint("Horizontal", 4, 3, 8, 3))
sketch4.addConstraint(Sketcher.Constraint("Horizontal", 1, 2, 5, 2))
sketch4.addConstraint(Sketcher.Constraint("Diameter", 4, Q("2 mm")))
sketch4.addConstraint(Sketcher.Constraint("Radius", 3, Q("4 mm")))
sketch4.addConstraint(Sketcher.Constraint("DistanceY", 0, 1, 0, 2, Q("2 mm")))
sketch4.addConstraint(Sketcher.Constraint("DistanceX", 8, 3, 3, 3, Q("40 mm")))
sketch4.addConstraint(Sketcher.Constraint("DistanceX", -1, 1, 3, 3, Q("89.239019 mm")))
sketch4.addConstraint(Sketcher.Constraint("DistanceY", -1, 1, 3, 3, Q("98.60155 mm")))
sketch4.setExpression("Constraints[20]", "Params.sketch4_diameter")
sketch4.setExpression("Constraints[21]", "Params.sketch4_radius")
sketch4.setExpression("Constraints[22]", "Params.sketch4_height")
pad4 = body.newObject("PartDesign::Pad", "Pad003")
pad4.Profile = sketch4
pad4.setExpression("Length", "Params.pad4_length")
pad4.Reversed = True

# Sketch on YZ plane
sketch5 = body.newObject("Sketcher::SketchObject", "Sketch004")
sketch5.AttachmentSupport = (doc.getObject("YZ_Plane"), [""])
sketch5.MapMode = "FlatFace"
sketch5.AttachmentOffset = App.Placement(App.Vector(0, 0, 23.394921), App.Rotation())
sketch5.addGeometry(Part.LineSegment(App.Vector(29.2, 100.6, 0), App.Vector(29.2, 103.6, 0)), False)
sketch5.addGeometry(Part.LineSegment(App.Vector(29.2, 103.6, 0), App.Vector(101, 103.6, 0)), False)
sketch5.addGeometry(Part.LineSegment(App.Vector(101, 103.6, 0), App.Vector(101, 100.6, 0)), False)
sketch5.addGeometry(Part.LineSegment(App.Vector(101, 100.6, 0), App.Vector(93.2, 100.6, 0)), False)
sketch5.addGeometry(Part.LineSegment(App.Vector(93.2, 100.6, 0), App.Vector(93.2, 98.6, 0)), False)
sketch5.addGeometry(Part.ArcOfCircle(Part.Circle(App.Vector(89.2, 98.6, 0), App.Vector(0, 0, 1), 4), math.radians(180), math.radians(360)), False)
sketch5.addGeometry(Part.LineSegment(App.Vector(85.2, 98.6, 0), App.Vector(85.2, 100.6, 0)), False)
sketch5.addGeometry(Part.LineSegment(App.Vector(85.2, 100.6, 0), App.Vector(53.2, 100.6, 0)), False)
sketch5.addGeometry(Part.LineSegment(App.Vector(53.2, 100.6, 0), App.Vector(53.2, 98.6, 0)), False)
sketch5.addGeometry(Part.ArcOfCircle(Part.Circle(App.Vector(49.2, 98.6, 0), App.Vector(0, 0, 1), 4), math.radians(180), math.radians(360)), False)
sketch5.addGeometry(Part.LineSegment(App.Vector(45.2, 98.6, 0), App.Vector(45.2, 100.6, 0)), False)
sketch5.addGeometry(Part.LineSegment(App.Vector(45.2, 100.6, 0), App.Vector(29.2, 100.6, 0)), False)
sketch5.addGeometry(Part.Circle(App.Vector(49.2, 98.6, 0), App.Vector(0, 0, 1), 1), False)
sketch5.addGeometry(Part.Circle(App.Vector(89.2, 98.6, 0), App.Vector(0, 0, 1), 1), False)
sketch5.addConstraint(Sketcher.Constraint("Coincident", 0, 2, 1, 1))
sketch5.addConstraint(Sketcher.Constraint("Coincident", 1, 2, 2, 1))
sketch5.addConstraint(Sketcher.Constraint("Coincident", 2, 2, 3, 1))
sketch5.addConstraint(Sketcher.Constraint("Coincident", 3, 2, 4, 1))
sketch5.addConstraint(Sketcher.Constraint("Tangent", 4, 2, 5, 2))
sketch5.addConstraint(Sketcher.Constraint("Tangent", 5, 1, 6, 1))
sketch5.addConstraint(Sketcher.Constraint("Coincident", 6, 2, 7, 1))
sketch5.addConstraint(Sketcher.Constraint("Coincident", 7, 2, 8, 1))
sketch5.addConstraint(Sketcher.Constraint("Tangent", 8, 2, 9, 2))
sketch5.addConstraint(Sketcher.Constraint("Tangent", 9, 1, 10, 1))
sketch5.addConstraint(Sketcher.Constraint("Coincident", 10, 2, 11, 1))
sketch5.addConstraint(Sketcher.Constraint("Coincident", 11, 2, 0, 1))
sketch5.addConstraint(Sketcher.Constraint("Vertical", 0))
sketch5.addConstraint(Sketcher.Constraint("Horizontal", 1))
sketch5.addConstraint(Sketcher.Constraint("Vertical", 2))
sketch5.addConstraint(Sketcher.Constraint("Horizontal", 3))
sketch5.addConstraint(Sketcher.Constraint("Vertical", 4))
sketch5.addConstraint(Sketcher.Constraint("Vertical", 6))
sketch5.addConstraint(Sketcher.Constraint("Horizontal", 7))
sketch5.addConstraint(Sketcher.Constraint("Vertical", 8))
sketch5.addConstraint(Sketcher.Constraint("Vertical", 10))
sketch5.addConstraint(Sketcher.Constraint("Horizontal", 11))
sketch5.addConstraint(Sketcher.Constraint("Coincident", 12, 3, 9, 3))
sketch5.addConstraint(Sketcher.Constraint("Coincident", 13, 3, 5, 3))
sketch5.addConstraint(Sketcher.Constraint("Equal", 5, 9))
sketch5.addConstraint(Sketcher.Constraint("Equal", 12, 13))
sketch5.addConstraint(Sketcher.Constraint("Horizontal", 5, 3, 9, 3))
sketch5.addConstraint(Sketcher.Constraint("Horizontal", 3, 2, 6, 2))
sketch5.addConstraint(Sketcher.Constraint("Horizontal", 7, 2, 10, 2))
sketch5.addConstraint(Sketcher.Constraint("Diameter", 12, Q("2 mm")))
sketch5.addConstraint(Sketcher.Constraint("Radius", 5, Q("4 mm")))
sketch5.addConstraint(Sketcher.Constraint("DistanceX", 7, 2, 7, 1, Q("32 mm")))
sketch5.addConstraint(Sketcher.Constraint("DistanceX", 11, 2, 11, 1, Q("16 mm")))
sketch5.addConstraint(Sketcher.Constraint("DistanceY", 0, 1, 0, 2, Q("3 mm")))
sketch5.addConstraint(Sketcher.Constraint("DistanceY", 4, 2, 4, 1, Q("2 mm")))
sketch5.addConstraint(Sketcher.Constraint("DistanceX", 1, 1, 1, 2, Q("71.717743 mm")))
sketch5.addConstraint(Sketcher.Constraint("DistanceX", -1, 1, 5, 3, Q("89.239019 mm")))
sketch5.addConstraint(Sketcher.Constraint("DistanceY", -1, 1, 5, 3, Q("98.60155 mm")))
sketch5.setExpression("Constraints[29]", "Params.sketch5_diameter")
sketch5.setExpression("Constraints[30]", "Params.sketch5_radius")
sketch5.setExpression("Constraints[31]", "Params.sketch5_width")
sketch5.setExpression("Constraints[32]", "Params.sketch5_width2")
sketch5.setExpression("Constraints[33]", "Params.sketch5_height")
pad5 = body.newObject("PartDesign::Pad", "Pad004")
pad5.Profile = sketch5
pad5.setExpression("Length", "Params.pad5_length")
pad5.Reversed = True

# Sketch on XZ plane
sketch6 = body.newObject("Sketcher::SketchObject", "Sketch005")
sketch6.AttachmentSupport = (doc.getObject("XZ_Plane"), [""])
sketch6.MapMode = "FlatFace"
sketch6.AttachmentOffset = App.Placement(App.Vector(0, 0, -105.956761), App.Rotation())
sketch6.addGeometry(Part.LineSegment(App.Vector(39.4, 100.6, 0), App.Vector(47.4, 100.6, 0)), False)
sketch6.addGeometry(Part.LineSegment(App.Vector(47.4, 100.6, 0), App.Vector(47.4, 98.6, 0)), False)
sketch6.addGeometry(Part.ArcOfCircle(Part.Circle(App.Vector(43.4, 98.6, 0), App.Vector(0, 0, 1), 4), math.radians(180), math.radians(360)), False)
sketch6.addGeometry(Part.LineSegment(App.Vector(39.4, 98.6, 0), App.Vector(39.4, 100.6, 0)), False)
sketch6.addGeometry(Part.Circle(App.Vector(43.4, 98.6, 0), App.Vector(0, 0, 1), 1), False)
sketch6.addGeometry(Part.LineSegment(App.Vector(68.4, 98.6, 0), App.Vector(68.4, 100.6, 0)), False)
sketch6.addGeometry(Part.LineSegment(App.Vector(68.4, 100.6, 0), App.Vector(76.4, 100.6, 0)), False)
sketch6.addGeometry(Part.LineSegment(App.Vector(76.4, 100.6, 0), App.Vector(76.4, 98.6, 0)), False)
sketch6.addGeometry(Part.ArcOfCircle(Part.Circle(App.Vector(72.4, 98.6, 0), App.Vector(0, 0, 1), 4), math.radians(180), math.radians(360)), False)
sketch6.addGeometry(Part.Circle(App.Vector(72.4, 98.6, 0), App.Vector(0, 0, 1), 1), False)
sketch6.addConstraint(Sketcher.Constraint("Coincident", 0, 2, 1, 1))
sketch6.addConstraint(Sketcher.Constraint("Tangent", 1, 2, 2, 2))
sketch6.addConstraint(Sketcher.Constraint("Tangent", 2, 1, 3, 1))
sketch6.addConstraint(Sketcher.Constraint("Coincident", 3, 2, 0, 1))
sketch6.addConstraint(Sketcher.Constraint("Coincident", 5, 2, 6, 1))
sketch6.addConstraint(Sketcher.Constraint("Coincident", 6, 2, 7, 1))
sketch6.addConstraint(Sketcher.Constraint("Tangent", 7, 2, 8, 2))
sketch6.addConstraint(Sketcher.Constraint("Tangent", 8, 1, 5, 1))
sketch6.addConstraint(Sketcher.Constraint("Horizontal", 0))
sketch6.addConstraint(Sketcher.Constraint("Vertical", 1))
sketch6.addConstraint(Sketcher.Constraint("Vertical", 3))
sketch6.addConstraint(Sketcher.Constraint("Vertical", 5))
sketch6.addConstraint(Sketcher.Constraint("Horizontal", 6))
sketch6.addConstraint(Sketcher.Constraint("Vertical", 7))
sketch6.addConstraint(Sketcher.Constraint("Coincident", 4, 3, 2, 3))
sketch6.addConstraint(Sketcher.Constraint("Coincident", 9, 3, 8, 3))
sketch6.addConstraint(Sketcher.Constraint("Equal", 2, 8))
sketch6.addConstraint(Sketcher.Constraint("Equal", 4, 9))
sketch6.addConstraint(Sketcher.Constraint("Horizontal", 4, 3, 8, 3))
sketch6.addConstraint(Sketcher.Constraint("Horizontal", 3, 2, 5, 2))
sketch6.addConstraint(Sketcher.Constraint("Diameter", 4, Q("2 mm")))
sketch6.addConstraint(Sketcher.Constraint("Radius", 2, Q("4 mm")))
sketch6.addConstraint(Sketcher.Constraint("DistanceY", 1, 2, 1, 1, Q("2 mm")))
sketch6.addConstraint(Sketcher.Constraint("DistanceX", 2, 3, 8, 3, Q("29 mm")))
sketch6.addConstraint(Sketcher.Constraint("DistanceX", -1, 1, 2, 3, Q("43.394921 mm")))
sketch6.addConstraint(Sketcher.Constraint("DistanceY", -1, 1, 2, 3, Q("98.60155 mm")))
sketch6.setExpression("Constraints[20]", "Params.sketch6_diameter")
sketch6.setExpression("Constraints[21]", "Params.sketch6_radius")
sketch6.setExpression("Constraints[22]", "Params.sketch6_height")
pad6 = body.newObject("PartDesign::Pad", "Pad005")
pad6.Profile = sketch6
pad6.setExpression("Length", "Params.pad6_length")

# Sketch on XY plane
sketch7 = body.newObject("Sketcher::SketchObject", "Sketch006")
sketch7.AttachmentSupport = (doc.getObject("XY_Plane"), [""])
sketch7.MapMode = "FlatFace"
sketch7.AttachmentOffset = App.Placement(App.Vector(0, 0, 108.60155), App.Rotation())
sketch7.addGeometry(Part.Circle(App.Vector(59, 72, 0), App.Vector(0, 0, 1), 30), False)
sketch7.addConstraint(Sketcher.Constraint("Diameter", 0, Q("60 mm")))
sketch7.addConstraint(Sketcher.Constraint("DistanceY", -1, 1, 0, 3, Q("71.545339 mm")))
sketch7.addConstraint(Sketcher.Constraint("DistanceX", -1, 1, 0, 3, Q("59.498986 mm")))
sketch7.setExpression("Constraints[0]", "Params.sketch7_diameter")
pocket1 = body.newObject("PartDesign::Pocket", "Pocket")
pocket1.Profile = sketch7
pocket1.Type = "ThroughAll"
pocket1.Midplane = True

doc.recompute()
